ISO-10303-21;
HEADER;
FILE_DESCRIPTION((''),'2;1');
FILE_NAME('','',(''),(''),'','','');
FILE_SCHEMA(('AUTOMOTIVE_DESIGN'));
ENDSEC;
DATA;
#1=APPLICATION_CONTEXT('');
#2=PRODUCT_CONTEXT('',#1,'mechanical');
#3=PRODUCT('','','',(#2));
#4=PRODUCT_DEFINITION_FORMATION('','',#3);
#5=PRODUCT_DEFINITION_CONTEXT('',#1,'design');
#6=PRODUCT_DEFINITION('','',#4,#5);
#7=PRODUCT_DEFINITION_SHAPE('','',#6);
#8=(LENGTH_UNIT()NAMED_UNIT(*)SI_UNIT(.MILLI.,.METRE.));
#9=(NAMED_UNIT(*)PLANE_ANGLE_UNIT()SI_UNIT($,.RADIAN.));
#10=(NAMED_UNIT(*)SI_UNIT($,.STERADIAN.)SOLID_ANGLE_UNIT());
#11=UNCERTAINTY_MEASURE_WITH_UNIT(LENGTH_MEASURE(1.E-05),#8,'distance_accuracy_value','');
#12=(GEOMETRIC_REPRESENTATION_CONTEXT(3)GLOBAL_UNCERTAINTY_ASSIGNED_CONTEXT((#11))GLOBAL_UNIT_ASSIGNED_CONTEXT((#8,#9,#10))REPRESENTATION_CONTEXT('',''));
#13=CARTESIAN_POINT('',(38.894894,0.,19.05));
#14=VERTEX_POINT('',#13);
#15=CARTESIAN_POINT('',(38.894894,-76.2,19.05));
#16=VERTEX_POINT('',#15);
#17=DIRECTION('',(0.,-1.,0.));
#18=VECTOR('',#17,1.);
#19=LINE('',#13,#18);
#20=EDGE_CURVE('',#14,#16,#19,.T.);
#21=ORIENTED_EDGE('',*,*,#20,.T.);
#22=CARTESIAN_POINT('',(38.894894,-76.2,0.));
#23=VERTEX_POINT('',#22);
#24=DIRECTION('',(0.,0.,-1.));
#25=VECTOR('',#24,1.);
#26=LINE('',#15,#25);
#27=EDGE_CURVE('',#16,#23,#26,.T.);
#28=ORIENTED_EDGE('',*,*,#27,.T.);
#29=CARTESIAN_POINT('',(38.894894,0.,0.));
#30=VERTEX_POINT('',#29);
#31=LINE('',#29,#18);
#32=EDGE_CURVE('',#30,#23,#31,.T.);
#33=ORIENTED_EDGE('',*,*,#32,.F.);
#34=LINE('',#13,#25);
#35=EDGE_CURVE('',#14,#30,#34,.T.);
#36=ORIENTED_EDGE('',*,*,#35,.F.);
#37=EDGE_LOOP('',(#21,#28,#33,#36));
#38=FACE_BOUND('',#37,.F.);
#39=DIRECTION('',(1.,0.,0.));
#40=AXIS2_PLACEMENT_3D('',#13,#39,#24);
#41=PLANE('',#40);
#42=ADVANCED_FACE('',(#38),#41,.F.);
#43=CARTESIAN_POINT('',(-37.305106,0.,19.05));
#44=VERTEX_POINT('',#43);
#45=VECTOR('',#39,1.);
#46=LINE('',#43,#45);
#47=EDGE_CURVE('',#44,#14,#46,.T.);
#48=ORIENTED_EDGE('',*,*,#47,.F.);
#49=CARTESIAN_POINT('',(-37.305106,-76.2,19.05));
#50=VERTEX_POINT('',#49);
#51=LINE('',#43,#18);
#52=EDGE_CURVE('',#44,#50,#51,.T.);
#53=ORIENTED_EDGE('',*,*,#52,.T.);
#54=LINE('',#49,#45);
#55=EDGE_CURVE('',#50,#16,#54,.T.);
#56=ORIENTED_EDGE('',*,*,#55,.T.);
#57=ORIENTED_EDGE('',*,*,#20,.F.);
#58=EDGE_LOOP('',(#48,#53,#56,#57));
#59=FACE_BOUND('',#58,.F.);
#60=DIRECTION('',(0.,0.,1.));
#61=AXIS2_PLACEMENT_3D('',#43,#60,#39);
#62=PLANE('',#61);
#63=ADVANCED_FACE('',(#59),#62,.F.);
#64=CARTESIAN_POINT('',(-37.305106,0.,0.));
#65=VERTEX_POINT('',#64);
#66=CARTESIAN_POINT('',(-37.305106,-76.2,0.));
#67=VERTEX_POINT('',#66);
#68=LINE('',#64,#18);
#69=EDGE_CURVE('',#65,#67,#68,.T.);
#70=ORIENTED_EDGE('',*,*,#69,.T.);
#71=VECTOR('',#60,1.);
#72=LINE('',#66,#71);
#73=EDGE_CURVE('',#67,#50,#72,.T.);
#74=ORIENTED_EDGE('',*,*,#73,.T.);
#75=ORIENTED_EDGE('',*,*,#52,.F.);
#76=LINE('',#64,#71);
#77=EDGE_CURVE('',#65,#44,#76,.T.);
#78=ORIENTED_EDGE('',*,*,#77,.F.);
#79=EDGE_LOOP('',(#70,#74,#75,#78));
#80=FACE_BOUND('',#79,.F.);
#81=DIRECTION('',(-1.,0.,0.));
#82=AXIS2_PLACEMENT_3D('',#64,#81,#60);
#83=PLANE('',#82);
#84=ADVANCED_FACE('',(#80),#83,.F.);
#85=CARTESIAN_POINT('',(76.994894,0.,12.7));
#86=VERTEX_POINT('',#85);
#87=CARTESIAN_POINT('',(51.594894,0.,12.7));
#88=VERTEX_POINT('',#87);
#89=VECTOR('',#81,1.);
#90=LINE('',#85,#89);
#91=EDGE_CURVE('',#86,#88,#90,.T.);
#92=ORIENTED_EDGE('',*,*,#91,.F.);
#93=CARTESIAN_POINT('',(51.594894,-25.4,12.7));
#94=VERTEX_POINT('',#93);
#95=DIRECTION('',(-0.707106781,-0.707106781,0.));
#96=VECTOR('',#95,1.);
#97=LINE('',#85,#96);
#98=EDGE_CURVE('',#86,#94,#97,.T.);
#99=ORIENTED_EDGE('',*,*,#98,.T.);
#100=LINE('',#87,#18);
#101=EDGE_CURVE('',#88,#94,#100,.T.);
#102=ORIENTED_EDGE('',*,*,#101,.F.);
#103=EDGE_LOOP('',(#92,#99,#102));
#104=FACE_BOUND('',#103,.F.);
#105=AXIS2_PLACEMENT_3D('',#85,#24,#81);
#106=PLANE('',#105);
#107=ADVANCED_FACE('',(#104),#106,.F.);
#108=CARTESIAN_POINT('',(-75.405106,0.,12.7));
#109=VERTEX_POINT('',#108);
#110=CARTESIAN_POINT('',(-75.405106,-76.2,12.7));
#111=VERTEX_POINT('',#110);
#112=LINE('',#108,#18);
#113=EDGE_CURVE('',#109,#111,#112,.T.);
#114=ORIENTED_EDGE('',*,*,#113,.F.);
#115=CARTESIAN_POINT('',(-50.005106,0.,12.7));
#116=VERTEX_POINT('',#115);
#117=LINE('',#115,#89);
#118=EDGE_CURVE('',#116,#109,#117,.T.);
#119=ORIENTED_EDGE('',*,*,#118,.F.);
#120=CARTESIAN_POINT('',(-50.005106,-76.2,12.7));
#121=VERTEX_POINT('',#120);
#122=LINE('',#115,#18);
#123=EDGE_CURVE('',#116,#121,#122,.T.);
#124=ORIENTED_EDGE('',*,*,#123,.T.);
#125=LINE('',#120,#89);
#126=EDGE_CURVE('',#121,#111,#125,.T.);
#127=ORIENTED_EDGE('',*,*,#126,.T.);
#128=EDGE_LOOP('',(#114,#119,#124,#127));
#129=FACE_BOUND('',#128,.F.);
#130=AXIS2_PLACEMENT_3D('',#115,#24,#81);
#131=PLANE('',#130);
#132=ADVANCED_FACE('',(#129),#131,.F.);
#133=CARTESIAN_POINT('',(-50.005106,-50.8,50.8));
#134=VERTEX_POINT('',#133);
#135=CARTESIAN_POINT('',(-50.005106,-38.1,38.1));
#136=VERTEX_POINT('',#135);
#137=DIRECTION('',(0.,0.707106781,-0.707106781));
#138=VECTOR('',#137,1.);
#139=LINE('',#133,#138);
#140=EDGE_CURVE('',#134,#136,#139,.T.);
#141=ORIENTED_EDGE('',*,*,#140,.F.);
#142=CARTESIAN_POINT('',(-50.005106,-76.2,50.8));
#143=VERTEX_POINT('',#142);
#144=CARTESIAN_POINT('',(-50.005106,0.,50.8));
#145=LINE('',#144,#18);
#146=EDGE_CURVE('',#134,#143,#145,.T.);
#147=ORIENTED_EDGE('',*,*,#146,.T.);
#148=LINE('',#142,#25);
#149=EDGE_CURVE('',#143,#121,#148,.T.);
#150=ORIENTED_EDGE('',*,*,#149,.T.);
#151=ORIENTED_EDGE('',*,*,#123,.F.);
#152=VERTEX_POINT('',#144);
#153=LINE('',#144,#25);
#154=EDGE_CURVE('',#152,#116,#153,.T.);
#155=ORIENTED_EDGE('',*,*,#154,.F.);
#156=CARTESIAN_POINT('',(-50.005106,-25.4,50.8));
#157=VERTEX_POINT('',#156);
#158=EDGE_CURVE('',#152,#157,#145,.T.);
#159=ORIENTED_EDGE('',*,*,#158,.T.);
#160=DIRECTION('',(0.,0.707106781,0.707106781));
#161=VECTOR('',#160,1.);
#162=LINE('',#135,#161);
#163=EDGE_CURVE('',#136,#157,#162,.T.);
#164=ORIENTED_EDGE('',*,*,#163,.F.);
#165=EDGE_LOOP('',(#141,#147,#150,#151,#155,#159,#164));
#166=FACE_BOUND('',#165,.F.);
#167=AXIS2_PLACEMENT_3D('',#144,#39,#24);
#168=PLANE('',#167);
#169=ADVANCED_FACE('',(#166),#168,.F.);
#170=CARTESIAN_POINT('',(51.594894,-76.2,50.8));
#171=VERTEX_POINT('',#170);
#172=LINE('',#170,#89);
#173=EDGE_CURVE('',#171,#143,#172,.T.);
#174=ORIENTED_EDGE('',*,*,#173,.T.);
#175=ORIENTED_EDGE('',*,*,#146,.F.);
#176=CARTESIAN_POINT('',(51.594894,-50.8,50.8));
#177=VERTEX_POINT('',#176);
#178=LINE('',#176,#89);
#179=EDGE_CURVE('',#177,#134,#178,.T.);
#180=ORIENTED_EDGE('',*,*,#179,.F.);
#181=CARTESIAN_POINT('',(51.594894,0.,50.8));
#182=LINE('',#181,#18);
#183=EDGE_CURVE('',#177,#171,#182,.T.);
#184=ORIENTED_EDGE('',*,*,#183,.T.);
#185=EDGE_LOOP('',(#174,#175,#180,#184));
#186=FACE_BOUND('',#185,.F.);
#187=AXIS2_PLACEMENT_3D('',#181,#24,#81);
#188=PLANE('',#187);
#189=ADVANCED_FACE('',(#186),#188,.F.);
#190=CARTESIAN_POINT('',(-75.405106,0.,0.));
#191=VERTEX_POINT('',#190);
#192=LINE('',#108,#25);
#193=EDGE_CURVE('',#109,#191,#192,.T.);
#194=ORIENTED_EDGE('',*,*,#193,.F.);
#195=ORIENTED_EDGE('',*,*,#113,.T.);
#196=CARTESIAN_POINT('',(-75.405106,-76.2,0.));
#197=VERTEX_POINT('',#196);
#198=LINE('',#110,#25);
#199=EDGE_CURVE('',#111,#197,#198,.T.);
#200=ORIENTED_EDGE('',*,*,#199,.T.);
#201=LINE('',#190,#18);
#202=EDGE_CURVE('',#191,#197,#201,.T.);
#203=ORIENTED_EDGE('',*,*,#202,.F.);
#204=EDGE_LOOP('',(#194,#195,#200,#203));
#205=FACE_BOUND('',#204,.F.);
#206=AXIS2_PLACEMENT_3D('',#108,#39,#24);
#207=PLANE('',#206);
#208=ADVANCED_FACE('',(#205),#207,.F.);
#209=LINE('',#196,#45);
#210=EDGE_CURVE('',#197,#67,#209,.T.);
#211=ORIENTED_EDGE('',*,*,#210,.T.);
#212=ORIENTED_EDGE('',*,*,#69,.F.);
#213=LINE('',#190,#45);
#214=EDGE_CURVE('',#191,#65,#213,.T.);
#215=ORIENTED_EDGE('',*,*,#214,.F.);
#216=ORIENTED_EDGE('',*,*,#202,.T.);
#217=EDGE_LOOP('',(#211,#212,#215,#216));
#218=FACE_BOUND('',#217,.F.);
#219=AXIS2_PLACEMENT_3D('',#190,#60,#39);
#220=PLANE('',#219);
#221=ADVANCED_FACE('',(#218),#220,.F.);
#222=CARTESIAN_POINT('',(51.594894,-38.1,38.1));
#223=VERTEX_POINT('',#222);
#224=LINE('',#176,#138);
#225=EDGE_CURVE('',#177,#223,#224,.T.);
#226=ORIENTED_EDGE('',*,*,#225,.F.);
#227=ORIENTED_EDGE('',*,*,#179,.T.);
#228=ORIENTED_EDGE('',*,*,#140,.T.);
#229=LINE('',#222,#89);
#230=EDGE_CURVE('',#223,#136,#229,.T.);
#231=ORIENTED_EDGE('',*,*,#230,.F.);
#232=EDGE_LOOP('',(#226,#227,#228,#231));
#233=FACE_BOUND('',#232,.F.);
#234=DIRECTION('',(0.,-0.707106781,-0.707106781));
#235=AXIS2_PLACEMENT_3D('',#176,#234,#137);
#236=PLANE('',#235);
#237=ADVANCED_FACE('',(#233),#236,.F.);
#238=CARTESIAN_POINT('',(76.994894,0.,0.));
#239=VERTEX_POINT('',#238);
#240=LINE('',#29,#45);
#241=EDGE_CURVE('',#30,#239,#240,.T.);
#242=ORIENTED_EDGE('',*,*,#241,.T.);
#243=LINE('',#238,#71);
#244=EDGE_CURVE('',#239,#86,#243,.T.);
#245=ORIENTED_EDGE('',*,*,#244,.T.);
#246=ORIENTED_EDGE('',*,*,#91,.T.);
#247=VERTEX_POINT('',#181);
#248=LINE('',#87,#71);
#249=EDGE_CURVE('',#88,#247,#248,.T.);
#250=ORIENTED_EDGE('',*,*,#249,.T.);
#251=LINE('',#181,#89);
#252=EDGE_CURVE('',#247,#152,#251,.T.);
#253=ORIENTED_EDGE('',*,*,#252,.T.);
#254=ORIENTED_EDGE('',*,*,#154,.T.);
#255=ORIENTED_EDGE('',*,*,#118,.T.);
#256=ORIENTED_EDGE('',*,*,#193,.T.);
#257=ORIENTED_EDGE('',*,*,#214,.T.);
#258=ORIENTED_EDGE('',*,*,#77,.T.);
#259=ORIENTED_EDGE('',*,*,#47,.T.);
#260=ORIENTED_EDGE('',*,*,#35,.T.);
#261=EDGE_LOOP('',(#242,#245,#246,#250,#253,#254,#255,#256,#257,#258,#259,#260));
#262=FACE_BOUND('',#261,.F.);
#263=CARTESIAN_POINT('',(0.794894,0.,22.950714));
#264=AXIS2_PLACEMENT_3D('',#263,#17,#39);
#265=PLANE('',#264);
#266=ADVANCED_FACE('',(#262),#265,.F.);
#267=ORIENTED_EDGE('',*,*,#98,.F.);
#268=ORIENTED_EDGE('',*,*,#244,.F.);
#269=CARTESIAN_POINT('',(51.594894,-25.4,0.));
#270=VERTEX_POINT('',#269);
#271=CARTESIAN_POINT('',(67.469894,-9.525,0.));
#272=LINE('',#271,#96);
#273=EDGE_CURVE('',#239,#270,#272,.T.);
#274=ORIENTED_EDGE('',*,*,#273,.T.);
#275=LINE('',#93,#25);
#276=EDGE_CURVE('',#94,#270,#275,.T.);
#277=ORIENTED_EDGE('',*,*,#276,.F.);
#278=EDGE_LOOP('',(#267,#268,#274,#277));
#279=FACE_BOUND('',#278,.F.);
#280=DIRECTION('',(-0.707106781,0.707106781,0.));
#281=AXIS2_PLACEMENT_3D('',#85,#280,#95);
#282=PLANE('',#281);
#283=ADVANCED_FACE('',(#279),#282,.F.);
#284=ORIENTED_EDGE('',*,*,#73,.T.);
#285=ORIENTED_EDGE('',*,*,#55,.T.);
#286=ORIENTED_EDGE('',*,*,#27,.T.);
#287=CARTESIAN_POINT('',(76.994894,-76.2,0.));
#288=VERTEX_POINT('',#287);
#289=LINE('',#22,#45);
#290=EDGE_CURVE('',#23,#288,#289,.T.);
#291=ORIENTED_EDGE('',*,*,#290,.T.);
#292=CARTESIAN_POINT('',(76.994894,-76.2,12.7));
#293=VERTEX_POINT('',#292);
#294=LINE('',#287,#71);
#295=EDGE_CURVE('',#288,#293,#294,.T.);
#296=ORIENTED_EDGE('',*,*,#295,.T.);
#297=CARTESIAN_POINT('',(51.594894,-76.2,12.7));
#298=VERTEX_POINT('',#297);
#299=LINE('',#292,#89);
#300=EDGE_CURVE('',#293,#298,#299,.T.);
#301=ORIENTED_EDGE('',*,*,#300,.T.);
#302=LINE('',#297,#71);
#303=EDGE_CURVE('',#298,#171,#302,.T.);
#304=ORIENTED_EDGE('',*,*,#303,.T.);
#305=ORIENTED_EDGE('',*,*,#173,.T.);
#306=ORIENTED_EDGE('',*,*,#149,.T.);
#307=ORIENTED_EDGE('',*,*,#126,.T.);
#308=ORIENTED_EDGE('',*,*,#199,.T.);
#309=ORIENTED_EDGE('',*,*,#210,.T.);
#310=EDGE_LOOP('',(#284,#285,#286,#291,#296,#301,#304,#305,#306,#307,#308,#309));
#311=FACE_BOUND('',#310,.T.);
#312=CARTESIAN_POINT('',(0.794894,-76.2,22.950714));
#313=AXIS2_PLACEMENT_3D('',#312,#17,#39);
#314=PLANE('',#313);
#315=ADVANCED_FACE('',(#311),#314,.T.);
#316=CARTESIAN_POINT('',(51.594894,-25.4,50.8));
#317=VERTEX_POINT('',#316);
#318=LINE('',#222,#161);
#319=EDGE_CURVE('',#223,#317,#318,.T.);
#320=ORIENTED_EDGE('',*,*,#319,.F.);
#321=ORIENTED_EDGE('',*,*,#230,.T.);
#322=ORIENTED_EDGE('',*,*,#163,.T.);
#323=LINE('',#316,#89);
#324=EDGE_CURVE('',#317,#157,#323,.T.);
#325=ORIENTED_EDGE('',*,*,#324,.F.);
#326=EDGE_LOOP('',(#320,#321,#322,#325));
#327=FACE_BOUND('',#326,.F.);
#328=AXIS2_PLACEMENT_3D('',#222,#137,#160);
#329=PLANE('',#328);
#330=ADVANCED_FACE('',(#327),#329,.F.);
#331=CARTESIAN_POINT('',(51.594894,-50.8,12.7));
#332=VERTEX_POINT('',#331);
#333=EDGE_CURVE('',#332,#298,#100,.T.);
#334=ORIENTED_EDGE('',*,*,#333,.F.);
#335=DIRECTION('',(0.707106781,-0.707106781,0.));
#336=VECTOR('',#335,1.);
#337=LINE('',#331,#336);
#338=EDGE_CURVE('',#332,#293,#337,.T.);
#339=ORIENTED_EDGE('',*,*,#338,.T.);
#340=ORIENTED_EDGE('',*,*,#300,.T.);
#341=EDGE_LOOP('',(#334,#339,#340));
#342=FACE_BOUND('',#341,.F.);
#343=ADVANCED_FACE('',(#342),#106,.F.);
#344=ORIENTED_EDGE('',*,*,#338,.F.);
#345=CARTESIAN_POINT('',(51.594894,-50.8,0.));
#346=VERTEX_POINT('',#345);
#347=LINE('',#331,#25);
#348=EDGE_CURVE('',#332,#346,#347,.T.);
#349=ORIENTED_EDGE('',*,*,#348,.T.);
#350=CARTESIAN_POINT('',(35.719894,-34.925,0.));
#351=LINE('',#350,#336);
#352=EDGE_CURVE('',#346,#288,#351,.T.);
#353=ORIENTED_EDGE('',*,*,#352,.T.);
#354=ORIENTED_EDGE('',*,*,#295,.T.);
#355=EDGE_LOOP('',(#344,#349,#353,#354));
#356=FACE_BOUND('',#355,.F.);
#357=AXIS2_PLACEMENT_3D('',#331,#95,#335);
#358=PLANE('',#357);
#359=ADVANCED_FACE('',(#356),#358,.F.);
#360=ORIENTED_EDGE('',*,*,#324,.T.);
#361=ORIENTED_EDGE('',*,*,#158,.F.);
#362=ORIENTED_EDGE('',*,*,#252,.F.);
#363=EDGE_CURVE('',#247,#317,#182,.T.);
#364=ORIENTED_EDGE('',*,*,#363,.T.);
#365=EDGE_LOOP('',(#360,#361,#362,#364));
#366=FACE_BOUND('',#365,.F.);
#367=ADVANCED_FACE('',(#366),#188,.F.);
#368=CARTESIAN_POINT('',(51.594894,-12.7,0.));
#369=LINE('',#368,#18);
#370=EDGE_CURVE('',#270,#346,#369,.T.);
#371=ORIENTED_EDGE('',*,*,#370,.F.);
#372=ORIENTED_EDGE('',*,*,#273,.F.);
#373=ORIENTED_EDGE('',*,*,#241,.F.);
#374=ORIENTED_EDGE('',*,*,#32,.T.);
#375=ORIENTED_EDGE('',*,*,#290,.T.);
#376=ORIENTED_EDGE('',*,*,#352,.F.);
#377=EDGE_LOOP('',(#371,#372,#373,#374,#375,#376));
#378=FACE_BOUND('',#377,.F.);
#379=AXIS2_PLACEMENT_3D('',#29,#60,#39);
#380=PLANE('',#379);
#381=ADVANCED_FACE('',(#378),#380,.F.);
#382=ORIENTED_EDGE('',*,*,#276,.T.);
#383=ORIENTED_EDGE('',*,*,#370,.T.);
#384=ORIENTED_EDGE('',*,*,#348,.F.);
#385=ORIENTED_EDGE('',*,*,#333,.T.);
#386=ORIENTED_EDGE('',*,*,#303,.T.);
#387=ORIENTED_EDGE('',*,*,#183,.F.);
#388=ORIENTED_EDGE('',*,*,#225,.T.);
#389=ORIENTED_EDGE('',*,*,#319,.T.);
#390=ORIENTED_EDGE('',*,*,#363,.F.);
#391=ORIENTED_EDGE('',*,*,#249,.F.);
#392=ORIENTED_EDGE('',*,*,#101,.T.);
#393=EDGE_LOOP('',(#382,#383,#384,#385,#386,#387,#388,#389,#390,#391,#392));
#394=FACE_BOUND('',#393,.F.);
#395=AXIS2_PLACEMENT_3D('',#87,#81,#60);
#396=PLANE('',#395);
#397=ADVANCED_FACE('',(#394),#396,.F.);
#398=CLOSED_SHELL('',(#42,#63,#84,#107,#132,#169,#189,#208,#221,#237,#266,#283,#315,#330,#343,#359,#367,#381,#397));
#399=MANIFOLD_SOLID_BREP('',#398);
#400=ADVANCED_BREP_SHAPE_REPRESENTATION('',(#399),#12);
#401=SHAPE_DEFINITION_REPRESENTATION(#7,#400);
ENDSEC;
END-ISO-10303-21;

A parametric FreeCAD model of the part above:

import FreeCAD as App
import Part
import Sketcher
Q = App.Units.Quantity

doc = App.newDocument("Part")
body = doc.addObject("PartDesign::Body", "Body")

# Sketch on XZ plane
sketch1 = doc.addObject("Sketcher::SketchObject", "Sketch")
body.addObject(sketch1)
sketch1.AttachmentSupport = (doc.XZ_Plane, [""])
sketch1.MapMode = "FlatFace"
sketch1.addGeometry([
    Part.LineSegment(App.Vector(-75, 13, 0), App.Vector(-75, 0, 0)),  # 0
    Part.LineSegment(App.Vector(-75, 0, 0), App.Vector(-37, 0, 0)),  # 1
    Part.LineSegment(App.Vector(-37, 0, 0), App.Vector(-37, 19, 0)),  # 2
    Part.LineSegment(App.Vector(-37, 19, 0), App.Vector(39, 19, 0)),  # 3
    Part.LineSegment(App.Vector(39, 19, 0), App.Vector(39, 0, 0)),  # 4
    Part.LineSegment(App.Vector(39, 0, 0), App.Vector(77, 0, 0)),  # 5
    Part.LineSegment(App.Vector(77, 0, 0), App.Vector(77, 13, 0)),  # 6
    Part.LineSegment(App.Vector(77, 13, 0), App.Vector(52, 13, 0)),  # 7
    Part.LineSegment(App.Vector(52, 13, 0), App.Vector(52, 51, 0)),  # 8
    Part.LineSegment(App.Vector(52, 51, 0), App.Vector(-50, 51, 0)),  # 9
    Part.LineSegment(App.Vector(-50, 51, 0), App.Vector(-50, 13, 0)),  # 10
    Part.LineSegment(App.Vector(-50, 13, 0), App.Vector(-75, 13, 0)),  # 11
], False)
sketch1.addConstraint([
    Sketcher.Constraint("Coincident", 0, 2, 1, 1),
    Sketcher.Constraint("Coincident", 1, 2, 2, 1),
    Sketcher.Constraint("Coincident", 2, 2, 3, 1),
    Sketcher.Constraint("Coincident", 3, 2, 4, 1),
    Sketcher.Constraint("Coincident", 4, 2, 5, 1),
    Sketcher.Constraint("Coincident", 5, 2, 6, 1),
    Sketcher.Constraint("Coincident", 6, 2, 7, 1),
    Sketcher.Constraint("Coincident", 7, 2, 8, 1),
    Sketcher.Constraint("Coincident", 8, 2, 9, 1),
    Sketcher.Constraint("Coincident", 9, 2, 10, 1),
    Sketcher.Constraint("Coincident", 10, 2, 11, 1),
    Sketcher.Constraint("Coincident", 11, 2, 0, 1),
    Sketcher.Constraint("Vertical", 0),
    Sketcher.Constraint("Horizontal", 1),
    Sketcher.Constraint("Vertical", 2),
    Sketcher.Constraint("Horizontal", 3),
    Sketcher.Constraint("Vertical", 4),
    Sketcher.Constraint("Horizontal", 5),
    Sketcher.Constraint("Vertical", 6),
    Sketcher.Constraint("Horizontal", 7),
    Sketcher.Constraint("Vertical", 8),
    Sketcher.Constraint("Horizontal", 9),
    Sketcher.Constraint("Vertical", 10),
    Sketcher.Constraint("Horizontal", 11),
    Sketcher.Constraint("PointOnObject", 0, 2, -1),
    Sketcher.Constraint("PointOnObject", 4, 2, -1),
    Sketcher.Constraint("Horizontal", 7, 2, 10, 2),
    Sketcher.Constraint("Equal", 1, 5),
    Sketcher.Constraint("Equal", 7, 11),
    Sketcher.Constraint("Equal", 5, 8),
    Sketcher.Constraint("DistanceX", 3, 1, 3, 2, Q("3 in")),
    Sketcher.Constraint("DistanceX", 7, 2, 7, 1, Q("1 in")),
    Sketcher.Constraint("DistanceX", 9, 2, 9, 1, Q("4 in")),
    Sketcher.Constraint("DistanceY", 0, 2, 0, 1, Q("0.5 in")),
    Sketcher.Constraint("DistanceY", 2, 1, 2, 2, Q("0.75 in")),
    Sketcher.Constraint("DistanceX", 0, 2, -1, 1, Q("75.405106 mm")),
])
pad1 = doc.addObject("PartDesign::Pad", "Pad")
body.addObject(pad1)
pad1.Profile = sketch1
pad1.Length = Q("3 in")

# Sketch on XY plane
sketch2 = doc.addObject("Sketcher::SketchObject", "Sketch001")
body.addObject(sketch2)
sketch2.AttachmentSupport = (doc.XY_Plane, [""])
sketch2.MapMode = "FlatFace"
sketch2.AttachmentOffset = App.Placement(App.Vector(0, 0, 0.5 * 25.4), App.Rotation())
sketch2.addGeometry([
    Part.LineSegment(App.Vector(52, -25, 0), App.Vector(52, -51, 0)),
    Part.LineSegment(App.Vector(52, -51, 0), App.Vector(77, -76, 0)),
    Part.LineSegment(App.Vector(77, -76, 0), App.Vector(77, 0, 0)),
    Part.LineSegment(App.Vector(77, 0, 0), App.Vector(52, -25, 0)),
], False)
sketch2.addConstraint([
    Sketcher.Constraint("Coincident", 0, 2, 1, 1),
    Sketcher.Constraint("Coincident", 1, 2, 2, 1),
    Sketcher.Constraint("Coincident", 2, 2, 3, 1),
    Sketcher.Constraint("Coincident", 3, 2, 0, 1),
    Sketcher.Constraint("Vertical", 0),
    Sketcher.Constraint("Vertical", 2),
    Sketcher.Constraint("PointOnObject", 2, 2, -1),
    Sketcher.Constraint("Perpendicular", 1, 3),
    Sketcher.Constraint("Equal", 1, 3),
    Sketcher.Constraint("DistanceY", 0, 2, 0, 1, Q("1 in")),
    Sketcher.Constraint("DistanceY", 2, 1, 2, 2, Q("3 in")),
    Sketcher.Constraint("DistanceX", -1, 1, 0, 2, Q("51.594894 mm")),
])
pocket1 = doc.addObject("PartDesign::Pocket", "Pocket")
body.addObject(pocket1)
pocket1.Profile = sketch2
pocket1.Length = Q("1 in")

# Sketch on YZ plane
sketch3 = doc.addObject("Sketcher::SketchObject", "Sketch002")
body.addObject(sketch3)
sketch3.AttachmentSupport = (doc.YZ_Plane, [""])
sketch3.MapMode = "FlatFace"
sketch3.AttachmentOffset = App.Placement(App.Vector(0, 0, 51.594894), App.Rotation())
sketch3.addGeometry([
    Part.LineSegment(App.Vector(-25, 51, 0), App.Vector(-51, 51, 0)),
    Part.LineSegment(App.Vector(-51, 51, 0), App.Vector(-38, 38, 0)),
    Part.LineSegment(App.Vector(-38, 38, 0), App.Vector(-25, 51, 0)),
], False)
sketch3.addConstraint([
    Sketcher.Constraint("Coincident", 0, 2, 1, 1),
    Sketcher.Constraint("Coincident", 1, 2, 2, 1),
    Sketcher.Constraint("Coincident", 2, 2, 0, 1),
    Sketcher.Constraint("Horizontal", 0),
    Sketcher.Constraint("Perpendicular", 1, 2),
    Sketcher.Constraint("Equal", 1, 2),
    Sketcher.Constraint("DistanceX", 0, 2, 0, 1, Q("1 in")),
    Sketcher.Constraint("DistanceX", 0, 2, -1, 1, Q("2 in")),
    Sketcher.Constraint("DistanceY", -1, 1, 0, 2, Q("2 in")),
])
pocket2 = doc.addObject("PartDesign::Pocket", "Pocket001")
body.addObject(pocket2)
pocket2.Profile = sketch3
pocket2.Type = "ThroughAll"

doc.recompute()
